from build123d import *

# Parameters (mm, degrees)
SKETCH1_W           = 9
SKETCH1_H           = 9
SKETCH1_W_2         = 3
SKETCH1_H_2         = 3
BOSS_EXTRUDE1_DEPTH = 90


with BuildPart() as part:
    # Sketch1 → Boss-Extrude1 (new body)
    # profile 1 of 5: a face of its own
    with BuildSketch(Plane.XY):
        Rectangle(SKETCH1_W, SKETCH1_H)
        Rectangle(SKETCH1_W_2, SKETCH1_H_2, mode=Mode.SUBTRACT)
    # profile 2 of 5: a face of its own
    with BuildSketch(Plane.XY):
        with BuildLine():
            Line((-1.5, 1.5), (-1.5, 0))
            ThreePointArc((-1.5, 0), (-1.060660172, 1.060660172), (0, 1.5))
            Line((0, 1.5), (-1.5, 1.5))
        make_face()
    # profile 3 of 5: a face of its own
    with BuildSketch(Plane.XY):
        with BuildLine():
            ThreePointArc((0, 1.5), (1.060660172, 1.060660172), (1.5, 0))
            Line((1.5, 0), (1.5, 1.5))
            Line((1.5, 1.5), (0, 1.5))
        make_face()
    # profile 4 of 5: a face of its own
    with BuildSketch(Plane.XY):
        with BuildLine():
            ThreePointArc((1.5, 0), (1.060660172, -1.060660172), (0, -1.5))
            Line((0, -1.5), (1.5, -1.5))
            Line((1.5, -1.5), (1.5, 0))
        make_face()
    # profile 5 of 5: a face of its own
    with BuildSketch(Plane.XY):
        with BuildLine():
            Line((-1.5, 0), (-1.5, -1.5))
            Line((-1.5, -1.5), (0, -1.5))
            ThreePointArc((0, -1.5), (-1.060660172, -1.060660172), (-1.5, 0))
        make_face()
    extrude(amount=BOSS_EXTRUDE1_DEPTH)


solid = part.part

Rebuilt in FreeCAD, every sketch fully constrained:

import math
import FreeCAD as App
import Part
import Sketcher
from FreeCAD import Vector

doc = App.newDocument("Part")
body = doc.addObject("PartDesign::Body", "Body")

# Sketch on XY plane
sketch1 = doc.addObject("Sketcher::SketchObject", "Sketch")
body.addObject(sketch1)
sketch1.AttachmentSupport = (doc.XY_Plane, [""])
sketch1.MapMode = "FlatFace"
sketch1.addGeometry(Part.LineSegment(Vector(-4.5, 4.5, 0), Vector(-4.5, -4.5, 0)), False)
sketch1.addGeometry(Part.LineSegment(Vector(-4.5, -4.5, 0), Vector(4.5, -4.5, 0)), False)
sketch1.addGeometry(Part.LineSegment(Vector(4.5, -4.5, 0), Vector(4.5, 4.5, 0)), False)
sketch1.addGeometry(Part.LineSegment(Vector(4.5, 4.5, 0), Vector(-4.5, 4.5, 0)), False)
sketch1.addGeometry(Part.ArcOfCircle(Part.Circle(Vector(0, 0, 0), Vector(0, 0, 1), 1.5), math.radians(180), math.radians(270)), False)
sketch1.addGeometry(Part.ArcOfCircle(Part.Circle(Vector(0, 0, 0), Vector(0, 0, 1), 1.5), math.radians(90), math.radians(180)), False)
sketch1.addGeometry(Part.ArcOfCircle(Part.Circle(Vector(0, 0, 0), Vector(0, 0, 1), 1.5), math.radians(0), math.radians(90)), False)
sketch1.addGeometry(Part.ArcOfCircle(Part.Circle(Vector(0, 0, 0), Vector(0, 0, 1), 1.5), math.radians(-90), math.radians(0)), False)
sketch1.addConstraint(Sketcher.Constraint("Coincident", 0, 2, 1, 1))
sketch1.addConstraint(Sketcher.Constraint("Coincident", 1, 2, 2, 1))
sketch1.addConstraint(Sketcher.Constraint("Coincident", 2, 2, 3, 1))
sketch1.addConstraint(Sketcher.Constraint("Coincident", 3, 2, 0, 1))
sketch1.addConstraint(Sketcher.Constraint("Tangent", 4, 1, 5, 2))
sketch1.addConstraint(Sketcher.Constraint("Tangent", 5, 1, 6, 2))
sketch1.addConstraint(Sketcher.Constraint("Tangent", 6, 1, 7, 2))
sketch1.addConstraint(Sketcher.Constraint("Tangent", 7, 1, 4, 2))
sketch1.addConstraint(Sketcher.Constraint("Vertical", 0))
sketch1.addConstraint(Sketcher.Constraint("Horizontal", 1))
sketch1.addConstraint(Sketcher.Constraint("Vertical", 2))
sketch1.addConstraint(Sketcher.Constraint("Horizontal", 3))
sketch1.addConstraint(Sketcher.Constraint("Coincident", 4, 3, -1, 1))
sketch1.addConstraint(Sketcher.Constraint("Equal", 4, 5))
sketch1.addConstraint(Sketcher.Constraint("Symmetric", 0, 2, 2, 2, -1, 1))
sketch1.addConstraint(Sketcher.Constraint("PointOnObject", 4, 1, -1))
sketch1.addConstraint(Sketcher.Constraint("PointOnObject", 5, 1, -2))
sketch1.addConstraint(Sketcher.Constraint("PointOnObject", 6, 1, -1))
sketch1.addConstraint(Sketcher.Constraint("PointOnObject", 7, 1, -2))
sketch1.addConstraint(Sketcher.Constraint("Equal", 3, 0))
sketch1.addConstraint(Sketcher.Constraint("Radius", 4, 1.5))
sketch1.addConstraint(Sketcher.Constraint("DistanceX", 1, 1, 1, 2, 9.0))
pad1 = doc.addObject("PartDesign::Pad", "Pad")
body.addObject(pad1)
pad1.Profile = sketch1
pad1.Length = 90

doc.recompute()
